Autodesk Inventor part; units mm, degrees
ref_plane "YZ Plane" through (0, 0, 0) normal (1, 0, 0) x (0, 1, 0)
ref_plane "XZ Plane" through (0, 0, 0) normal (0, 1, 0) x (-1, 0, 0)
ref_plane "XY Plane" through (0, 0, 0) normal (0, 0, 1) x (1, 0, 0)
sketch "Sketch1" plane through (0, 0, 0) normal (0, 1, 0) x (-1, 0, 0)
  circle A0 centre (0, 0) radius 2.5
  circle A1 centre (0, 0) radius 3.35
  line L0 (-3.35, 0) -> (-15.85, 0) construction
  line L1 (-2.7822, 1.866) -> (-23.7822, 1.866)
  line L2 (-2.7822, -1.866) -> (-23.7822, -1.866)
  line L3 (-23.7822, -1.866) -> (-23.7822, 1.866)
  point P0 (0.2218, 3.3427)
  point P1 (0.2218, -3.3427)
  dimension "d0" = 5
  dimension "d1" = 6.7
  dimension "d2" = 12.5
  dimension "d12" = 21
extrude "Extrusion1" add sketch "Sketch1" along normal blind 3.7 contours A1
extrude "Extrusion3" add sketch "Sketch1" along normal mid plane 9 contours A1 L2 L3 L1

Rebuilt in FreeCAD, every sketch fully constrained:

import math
import FreeCAD as App
import Part
import Sketcher
from FreeCAD import Vector

doc = App.newDocument("Part")
body = doc.addObject("PartDesign::Body", "Body")

sketch1 = body.newObject("Sketcher::SketchObject", "Sketch")
sketch1.AttachmentSupport = (doc.getObject("XZ_Plane"), [""])
sketch1.MapMode = "FlatFace"
sketch1.addGeometry([
    Part.Circle(Vector(0, 0, 0), Vector(0, 0, 1), 3.4),
    Part.Circle(Vector(0, 0, 0), Vector(0, 0, 1), 2.5),
], False)
sketch1.addConstraint([
    Sketcher.Constraint("Coincident", 0, 3, -1, 1),
    Sketcher.Constraint("Coincident", 1, 3, -1, 1),
    Sketcher.Constraint("Diameter", 1, 5.0),
    Sketcher.Constraint("Diameter", 0, 6.7),
])
pad1 = body.newObject("PartDesign::Pad", "Pad")
pad1.Profile = sketch1
pad1.Length = 3.7
pad1.Reversed = True

sketch2 = body.newObject("Sketcher::SketchObject", "Sketch001")
sketch2.AttachmentSupport = (doc.getObject("XZ_Plane"), [""])
sketch2.MapMode = "FlatFace"
sketch2.addGeometry([
    Part.ArcOfCircle(Part.Circle(Vector(0, 0, 0), Vector(0, 0, 1), 3.4), math.radians(-34), math.radians(34)),
    Part.LineSegment(Vector(2.8, 1.9, 0), Vector(23.8, 1.9, 0)),
    Part.LineSegment(Vector(23.8, 1.9, 0), Vector(23.8, -1.9, 0)),
    Part.LineSegment(Vector(23.8, -1.9, 0), Vector(2.8, -1.9, 0)),
], False)
sketch2.addConstraint([
    Sketcher.Constraint("Coincident", 0, 2, 1, 1),
    Sketcher.Constraint("Coincident", 1, 2, 2, 1),
    Sketcher.Constraint("Coincident", 2, 2, 3, 1),
    Sketcher.Constraint("Coincident", 3, 2, 0, 1),
    Sketcher.Constraint("Horizontal", 1),
    Sketcher.Constraint("Vertical", 2),
    Sketcher.Constraint("Horizontal", 3),
    Sketcher.Constraint("Coincident", 0, 3, -1, 1),
    Sketcher.Constraint("Vertical", 0, 2, 3, 2),
    Sketcher.Constraint("DistanceX", 1, 1, 1, 2, 21.0),
    Sketcher.Constraint("Radius", 0, 3.35),
    Sketcher.Constraint("DistanceY", 2, 2, 2, 1, 3.732),
])
pad2 = body.newObject("PartDesign::Pad", "Pad001")
pad2.Profile = sketch2
pad2.Length = 9
pad2.Midplane = True

doc.recompute()
